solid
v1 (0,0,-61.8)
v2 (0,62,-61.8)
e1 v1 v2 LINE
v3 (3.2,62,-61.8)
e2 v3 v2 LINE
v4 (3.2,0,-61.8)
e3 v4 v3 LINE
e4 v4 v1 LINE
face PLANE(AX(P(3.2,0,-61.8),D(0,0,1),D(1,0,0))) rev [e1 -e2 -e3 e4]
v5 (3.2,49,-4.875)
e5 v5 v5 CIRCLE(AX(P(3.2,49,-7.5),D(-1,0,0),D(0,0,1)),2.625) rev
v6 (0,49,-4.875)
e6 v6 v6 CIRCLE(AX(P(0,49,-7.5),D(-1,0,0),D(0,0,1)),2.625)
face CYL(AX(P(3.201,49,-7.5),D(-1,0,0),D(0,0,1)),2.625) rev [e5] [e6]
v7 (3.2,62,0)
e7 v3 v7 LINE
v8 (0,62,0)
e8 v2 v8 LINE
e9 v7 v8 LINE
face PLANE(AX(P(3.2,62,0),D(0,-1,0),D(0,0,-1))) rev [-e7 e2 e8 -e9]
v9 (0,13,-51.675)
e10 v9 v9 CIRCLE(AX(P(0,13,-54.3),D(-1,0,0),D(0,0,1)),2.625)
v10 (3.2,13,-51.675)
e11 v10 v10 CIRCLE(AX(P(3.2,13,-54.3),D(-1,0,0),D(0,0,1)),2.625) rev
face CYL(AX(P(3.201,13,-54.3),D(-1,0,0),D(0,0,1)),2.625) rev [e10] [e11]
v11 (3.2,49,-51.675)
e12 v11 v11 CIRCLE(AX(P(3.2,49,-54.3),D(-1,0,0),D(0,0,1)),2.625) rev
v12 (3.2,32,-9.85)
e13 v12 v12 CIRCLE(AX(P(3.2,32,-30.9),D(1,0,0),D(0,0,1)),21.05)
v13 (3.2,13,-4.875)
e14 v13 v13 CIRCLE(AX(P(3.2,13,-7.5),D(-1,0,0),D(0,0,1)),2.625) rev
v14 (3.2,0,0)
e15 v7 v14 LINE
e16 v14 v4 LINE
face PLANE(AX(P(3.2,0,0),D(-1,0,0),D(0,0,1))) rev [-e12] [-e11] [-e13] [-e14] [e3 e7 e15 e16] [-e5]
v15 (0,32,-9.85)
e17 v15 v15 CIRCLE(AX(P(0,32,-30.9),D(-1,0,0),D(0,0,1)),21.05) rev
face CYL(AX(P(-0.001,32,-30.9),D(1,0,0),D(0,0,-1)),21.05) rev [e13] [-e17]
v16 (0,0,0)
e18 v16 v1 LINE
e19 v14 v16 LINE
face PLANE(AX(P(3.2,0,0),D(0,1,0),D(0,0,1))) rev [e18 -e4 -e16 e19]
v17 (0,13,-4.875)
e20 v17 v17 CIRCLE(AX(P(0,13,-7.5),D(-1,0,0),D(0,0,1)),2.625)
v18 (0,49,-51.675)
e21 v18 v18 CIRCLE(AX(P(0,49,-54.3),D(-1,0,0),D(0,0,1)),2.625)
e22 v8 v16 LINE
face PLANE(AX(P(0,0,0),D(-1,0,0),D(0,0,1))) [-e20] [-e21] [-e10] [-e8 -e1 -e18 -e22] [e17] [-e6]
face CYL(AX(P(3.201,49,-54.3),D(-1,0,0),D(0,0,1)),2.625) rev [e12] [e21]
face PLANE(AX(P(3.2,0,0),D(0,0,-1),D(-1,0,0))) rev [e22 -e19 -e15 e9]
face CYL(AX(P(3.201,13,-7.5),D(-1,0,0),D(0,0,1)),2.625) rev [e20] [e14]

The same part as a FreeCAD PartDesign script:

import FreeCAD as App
import Part
import Sketcher
from FreeCAD import Vector
Q = App.Units.Quantity

doc = App.newDocument("Part")
body = doc.addObject("PartDesign::Body", "Body")

# Sketch on YZ plane
sketch1 = doc.addObject("Sketcher::SketchObject", "Sketch")
body.addObject(sketch1)
sketch1.AttachmentSupport = (doc.YZ_Plane, [""])
sketch1.MapMode = "FlatFace"
sketch1.addGeometry([
    Part.LineSegment(Vector(62, 0, 0), Vector(0, 0, 0)),
    Part.LineSegment(Vector(0, 0, 0), Vector(0, -62, 0)),
    Part.LineSegment(Vector(0, -62, 0), Vector(62, -62, 0)),
    Part.LineSegment(Vector(62, -62, 0), Vector(62, 0, 0)),
], False)
sketch1.addConstraint([
    Sketcher.Constraint("Coincident", 0, 2, 1, 1),
    Sketcher.Constraint("Coincident", 1, 2, 2, 1),
    Sketcher.Constraint("Coincident", 2, 2, 3, 1),
    Sketcher.Constraint("Coincident", 3, 2, 0, 1),
    Sketcher.Constraint("Horizontal", 0),
    Sketcher.Constraint("Vertical", 1),
    Sketcher.Constraint("Horizontal", 2),
    Sketcher.Constraint("Vertical", 3),
    Sketcher.Constraint("Coincident", 0, 2, -1, 1),
    Sketcher.Constraint("DistanceX", 0, 2, 0, 1, Q("62 mm")),
    Sketcher.Constraint("DistanceY", 1, 2, 1, 1, Q("61.8 mm")),
])
pad1 = doc.addObject("PartDesign::Pad", "Pad")
body.addObject(pad1)
pad1.Profile = sketch1
pad1.Length = 3.2

# Sketch on YZ plane
sketch2 = doc.addObject("Sketcher::SketchObject", "Sketch001")
body.addObject(sketch2)
sketch2.AttachmentSupport = (doc.YZ_Plane, [""])
sketch2.MapMode = "FlatFace"
sketch2.AttachmentOffset = App.Placement(Vector(0, 0, 3.2), App.Rotation())
sketch2.addGeometry(Part.Circle(Vector(32, -31, 0), Vector(0, 0, 1), 21), False)
sketch2.addConstraint([
    Sketcher.Constraint("Diameter", 0, Q("42.1 mm")),
    Sketcher.Constraint("DistanceX", -1, 1, 0, 3, Q("32 mm")),
    Sketcher.Constraint("DistanceY", 0, 3, -1, 1, Q("30.9 mm")),
])
pocket1 = doc.addObject("PartDesign::Pocket", "Pocket")
body.addObject(pocket1)
pocket1.Profile = sketch2
pocket1.Type = "UpToFirst"

# Sketch on YZ plane
sketch3 = doc.addObject("Sketcher::SketchObject", "Sketch002")
body.addObject(sketch3)
sketch3.AttachmentSupport = (doc.YZ_Plane, [""])
sketch3.MapMode = "FlatFace"
sketch3.addGeometry(Part.Circle(Vector(49, -54.3, 0), Vector(0, 0, 1), 2.6), False)
sketch3.addConstraint([
    Sketcher.Constraint("Diameter", 0, Q("5.25 mm")),
    Sketcher.Constraint("DistanceX", -1, 1, 0, 3, Q("49 mm")),
    Sketcher.Constraint("DistanceY", 0, 3, -1, 1, Q("54.3 mm")),
])
pocket2 = doc.addObject("PartDesign::Pocket", "Pocket001")
body.addObject(pocket2)
pocket2.Profile = sketch3
pocket2.Type = "UpToFirst"
pocket2.Reversed = True

# Sketch on YZ plane
sketch4 = doc.addObject("Sketcher::SketchObject", "Sketch003")
body.addObject(sketch4)
sketch4.AttachmentSupport = (doc.YZ_Plane, [""])
sketch4.MapMode = "FlatFace"
sketch4.addGeometry(Part.Circle(Vector(13, -54.3, 0), Vector(0, 0, 1), 2.6), False)
sketch4.addConstraint([
    Sketcher.Constraint("Diameter", 0, Q("5.25 mm")),
    Sketcher.Constraint("DistanceX", -1, 1, 0, 3, Q("13 mm")),
    Sketcher.Constraint("DistanceY", 0, 3, -1, 1, Q("54.3 mm")),
])
pocket3 = doc.addObject("PartDesign::Pocket", "Pocket002")
body.addObject(pocket3)
pocket3.Profile = sketch4
pocket3.Type = "UpToFirst"
pocket3.Reversed = True

# Sketch on YZ plane
sketch5 = doc.addObject("Sketcher::SketchObject", "Sketch004")
body.addObject(sketch5)
sketch5.AttachmentSupport = (doc.YZ_Plane, [""])
sketch5.MapMode = "FlatFace"
sketch5.addGeometry(Part.Circle(Vector(49, -7.5, 0), Vector(0, 0, 1), 2.6), False)
sketch5.addConstraint([
    Sketcher.Constraint("Diameter", 0, Q("5.25 mm")),
    Sketcher.Constraint("DistanceX", -1, 1, 0, 3, Q("49 mm")),
    Sketcher.Constraint("DistanceY", 0, 3, -1, 1, Q("7.5 mm")),
])
pocket4 = doc.addObject("PartDesign::Pocket", "Pocket003")
body.addObject(pocket4)
pocket4.Profile = sketch5
pocket4.Type = "UpToFirst"
pocket4.Reversed = True

# Sketch on YZ plane
sketch6 = doc.addObject("Sketcher::SketchObject", "Sketch005")
body.addObject(sketch6)
sketch6.AttachmentSupport = (doc.YZ_Plane, [""])
sketch6.MapMode = "FlatFace"
sketch6.addGeometry(Part.Circle(Vector(13, -7.5, 0), Vector(0, 0, 1), 2.6), False)
sketch6.addConstraint([
    Sketcher.Constraint("Diameter", 0, Q("5.25 mm")),
    Sketcher.Constraint("DistanceX", -1, 1, 0, 3, Q("13 mm")),
    Sketcher.Constraint("DistanceY", 0, 3, -1, 1, Q("7.5 mm")),
])
pocket5 = doc.addObject("PartDesign::Pocket", "Pocket004")
body.addObject(pocket5)
pocket5.Profile = sketch6
pocket5.Type = "UpToFirst"
pocket5.Reversed = True

doc.recompute()
